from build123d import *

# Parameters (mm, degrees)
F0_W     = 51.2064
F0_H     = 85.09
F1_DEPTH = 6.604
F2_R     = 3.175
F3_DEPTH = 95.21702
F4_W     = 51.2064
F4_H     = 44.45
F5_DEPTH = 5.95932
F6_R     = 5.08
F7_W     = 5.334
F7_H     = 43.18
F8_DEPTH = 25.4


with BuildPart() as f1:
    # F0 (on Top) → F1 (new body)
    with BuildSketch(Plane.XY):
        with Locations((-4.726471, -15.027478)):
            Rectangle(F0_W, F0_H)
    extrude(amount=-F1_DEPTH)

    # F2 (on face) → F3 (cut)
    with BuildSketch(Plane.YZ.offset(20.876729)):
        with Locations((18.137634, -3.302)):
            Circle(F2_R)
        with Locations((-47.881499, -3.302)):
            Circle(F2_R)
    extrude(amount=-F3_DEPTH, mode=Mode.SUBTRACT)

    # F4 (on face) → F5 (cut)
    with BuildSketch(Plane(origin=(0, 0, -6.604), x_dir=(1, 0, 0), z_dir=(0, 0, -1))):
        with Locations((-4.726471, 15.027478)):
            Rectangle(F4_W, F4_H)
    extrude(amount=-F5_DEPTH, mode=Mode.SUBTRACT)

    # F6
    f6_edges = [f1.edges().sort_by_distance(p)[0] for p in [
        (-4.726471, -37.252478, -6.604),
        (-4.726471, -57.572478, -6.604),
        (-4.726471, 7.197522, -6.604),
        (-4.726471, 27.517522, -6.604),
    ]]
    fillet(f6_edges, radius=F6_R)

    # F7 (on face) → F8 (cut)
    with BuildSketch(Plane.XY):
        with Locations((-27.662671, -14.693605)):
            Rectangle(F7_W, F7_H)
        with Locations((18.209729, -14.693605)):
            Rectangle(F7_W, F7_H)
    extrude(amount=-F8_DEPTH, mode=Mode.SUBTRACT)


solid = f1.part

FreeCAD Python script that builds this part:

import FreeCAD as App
import Part
import Sketcher

V = App.Vector
Q = App.Units.Quantity


def edges_at(feature, points):
    """Names of the edges that pass closest to the given points."""
    edges = feature.Shape.Edges
    near = lambda p: min(range(len(edges)), key=lambda i: edges[i].distToShape(Part.Vertex(*p))[0])
    return sorted({f"Edge{near(p) + 1}" for p in points})


def add_polygon(sketch, points):
    """Adds a closed chain of lines whose ends are joined by coincident constraints."""
    first, n = sketch.GeometryCount, len(points)
    for a, b in zip(points, points[1:] + points[:1]):
        sketch.addGeometry(Part.LineSegment(App.Vector(*a, 0), App.Vector(*b, 0)), False)
    for i in range(n):
        sketch.addConstraint(Sketcher.Constraint("Coincident", first + i, 2, first + (i + 1) % n, 1))

doc = App.newDocument("Part")
body = doc.addObject("PartDesign::Body", "Body")

# Sketch on XY plane
sketch1 = body.newObject("Sketcher::SketchObject", "Sketch")
sketch1.AttachmentSupport = (doc.getObject("XY_Plane"), [""])
sketch1.MapMode = "FlatFace"
add_polygon(sketch1, [(-30, 28), (-30, -58), (21, -58), (21, 28)])  # lines 0-3
sketch1.addConstraint(Sketcher.Constraint("Vertical", 0))
sketch1.addConstraint(Sketcher.Constraint("Horizontal", 1))
sketch1.addConstraint(Sketcher.Constraint("Vertical", 2))
sketch1.addConstraint(Sketcher.Constraint("Horizontal", 3))
sketch1.addConstraint(Sketcher.Constraint("DistanceY", 0, 2, 0, 1, Q("3.35 in")))
sketch1.addConstraint(Sketcher.Constraint("DistanceX", 1, 1, 1, 2, Q("2.016 in")))
sketch1.addConstraint(Sketcher.Constraint("DistanceX", 0, 2, -1, 1, Q("30.329671 mm")))
sketch1.addConstraint(Sketcher.Constraint("DistanceY", -1, 1, 2, 2, Q("27.517522 mm")))
pad1 = body.newObject("PartDesign::Pad", "Pad")
pad1.Profile = sketch1
pad1.Length = Q("0.26 in")
pad1.Reversed = True

# Sketch on YZ plane
sketch2 = body.newObject("Sketcher::SketchObject", "Sketch001")
sketch2.AttachmentSupport = (doc.getObject("YZ_Plane"), [""])
sketch2.MapMode = "FlatFace"
sketch2.AttachmentOffset = App.Placement(V(0, 0, 20.876729), App.Rotation())
sketch2.addGeometry(Part.Circle(V(18.1, -3.3, 0), V(0, 0, 1), 3.2), False)
sketch2.addGeometry(Part.Circle(V(-47.9, -3.3, 0), V(0, 0, 1), 3.2), False)
sketch2.addConstraint(Sketcher.Constraint("Equal", 0, 1))
sketch2.addConstraint(Sketcher.Constraint("Horizontal", 0, 3, 1, 3))
sketch2.addConstraint(Sketcher.Constraint("Diameter", 0, Q("0.25 in")))
sketch2.addConstraint(Sketcher.Constraint("DistanceY", 0, 3, -1, 1, Q("0.13 in")))
sketch2.addConstraint(Sketcher.Constraint("DistanceX", 1, 3, -1, 1, Q("47.881499 mm")))
sketch2.addConstraint(Sketcher.Constraint("DistanceX", -1, 1, 0, 3, Q("18.137634 mm")))
pocket1 = body.newObject("PartDesign::Pocket", "Pocket")
pocket1.Profile = sketch2
pocket1.Length = 95.21702

# Sketch on XY plane
sketch3 = body.newObject("Sketcher::SketchObject", "Sketch002")
sketch3.AttachmentSupport = (doc.getObject("XY_Plane"), [""])
sketch3.MapMode = "FlatFace"
sketch3.AttachmentOffset = App.Placement(V(0, 0, -0.26 * 25.4), App.Rotation())
add_polygon(sketch3, [(-30, -37), (-30, 7), (21, 7), (21, -37)])  # lines 0-3
sketch3.addConstraint(Sketcher.Constraint("Vertical", 0))
sketch3.addConstraint(Sketcher.Constraint("Horizontal", 1))
sketch3.addConstraint(Sketcher.Constraint("Vertical", 2))
sketch3.addConstraint(Sketcher.Constraint("Horizontal", 3))
sketch3.addConstraint(Sketcher.Constraint("DistanceY", 0, 1, 0, 2, Q("1.75 in")))
sketch3.addConstraint(Sketcher.Constraint("DistanceX", 1, 1, 1, 2, Q("2.016 in")))
sketch3.addConstraint(Sketcher.Constraint("DistanceX", 0, 2, -1, 1, Q("30.329671 mm")))
sketch3.addConstraint(Sketcher.Constraint("DistanceY", 2, 2, -1, 1, Q("37.252478 mm")))
pocket2 = body.newObject("PartDesign::Pocket", "Pocket001")
pocket2.Profile = sketch3
pocket2.Length = 5.95932
pocket2.Reversed = True
doc.recompute()

fillet = body.newObject("PartDesign::Fillet", "Fillet")
fillet.Base = (pocket2, edges_at(pocket2, [
    (-4.726, -37.252, -6.604),
    (-4.726, -57.572, -6.604),
    (-4.726, 7.198, -6.604),
    (-4.726, 27.518, -6.604),
]))
fillet.Radius = Q("0.2 in")

# Sketch on XY plane
sketch4 = body.newObject("Sketcher::SketchObject", "Sketch003")
sketch4.AttachmentSupport = (doc.getObject("XY_Plane"), [""])
sketch4.MapMode = "FlatFace"
add_polygon(sketch4, [(-30, 7), (-30, -36), (-25, -36), (-25, 7)])  # lines 0-3
add_polygon(sketch4, [(16, 7), (16, -36), (21, -36), (21, 7)])  # lines 4-7
sketch4.addConstraint(Sketcher.Constraint("Vertical", 0))
sketch4.addConstraint(Sketcher.Constraint("Horizontal", 1))
sketch4.addConstraint(Sketcher.Constraint("Vertical", 2))
sketch4.addConstraint(Sketcher.Constraint("Horizontal", 3))
sketch4.addConstraint(Sketcher.Constraint("Vertical", 4))
sketch4.addConstraint(Sketcher.Constraint("Horizontal", 5))
sketch4.addConstraint(Sketcher.Constraint("Vertical", 6))
sketch4.addConstraint(Sketcher.Constraint("Horizontal", 7))
sketch4.addConstraint(Sketcher.Constraint("Horizontal", 1, 2, 4, 2))
sketch4.addConstraint(Sketcher.Constraint("Horizontal", 3, 2, 6, 2))
sketch4.addConstraint(Sketcher.Constraint("Equal", 3, 5))
sketch4.addConstraint(Sketcher.Constraint("DistanceY", 0, 2, 0, 1, Q("1.7 in")))
sketch4.addConstraint(Sketcher.Constraint("DistanceX", 1, 1, 1, 2, Q("0.21 in")))
sketch4.addConstraint(Sketcher.Constraint("DistanceX", 1, 2, 4, 2, Q("1.596 in")))
sketch4.addConstraint(Sketcher.Constraint("DistanceX", 0, 2, -1, 1, Q("30.329671 mm")))
sketch4.addConstraint(Sketcher.Constraint("DistanceY", 0, 2, -1, 1, Q("36.283605 mm")))
pocket3 = body.newObject("PartDesign::Pocket", "Pocket002")
pocket3.Profile = sketch4
pocket3.Length = Q("1 in")

doc.recompute()
